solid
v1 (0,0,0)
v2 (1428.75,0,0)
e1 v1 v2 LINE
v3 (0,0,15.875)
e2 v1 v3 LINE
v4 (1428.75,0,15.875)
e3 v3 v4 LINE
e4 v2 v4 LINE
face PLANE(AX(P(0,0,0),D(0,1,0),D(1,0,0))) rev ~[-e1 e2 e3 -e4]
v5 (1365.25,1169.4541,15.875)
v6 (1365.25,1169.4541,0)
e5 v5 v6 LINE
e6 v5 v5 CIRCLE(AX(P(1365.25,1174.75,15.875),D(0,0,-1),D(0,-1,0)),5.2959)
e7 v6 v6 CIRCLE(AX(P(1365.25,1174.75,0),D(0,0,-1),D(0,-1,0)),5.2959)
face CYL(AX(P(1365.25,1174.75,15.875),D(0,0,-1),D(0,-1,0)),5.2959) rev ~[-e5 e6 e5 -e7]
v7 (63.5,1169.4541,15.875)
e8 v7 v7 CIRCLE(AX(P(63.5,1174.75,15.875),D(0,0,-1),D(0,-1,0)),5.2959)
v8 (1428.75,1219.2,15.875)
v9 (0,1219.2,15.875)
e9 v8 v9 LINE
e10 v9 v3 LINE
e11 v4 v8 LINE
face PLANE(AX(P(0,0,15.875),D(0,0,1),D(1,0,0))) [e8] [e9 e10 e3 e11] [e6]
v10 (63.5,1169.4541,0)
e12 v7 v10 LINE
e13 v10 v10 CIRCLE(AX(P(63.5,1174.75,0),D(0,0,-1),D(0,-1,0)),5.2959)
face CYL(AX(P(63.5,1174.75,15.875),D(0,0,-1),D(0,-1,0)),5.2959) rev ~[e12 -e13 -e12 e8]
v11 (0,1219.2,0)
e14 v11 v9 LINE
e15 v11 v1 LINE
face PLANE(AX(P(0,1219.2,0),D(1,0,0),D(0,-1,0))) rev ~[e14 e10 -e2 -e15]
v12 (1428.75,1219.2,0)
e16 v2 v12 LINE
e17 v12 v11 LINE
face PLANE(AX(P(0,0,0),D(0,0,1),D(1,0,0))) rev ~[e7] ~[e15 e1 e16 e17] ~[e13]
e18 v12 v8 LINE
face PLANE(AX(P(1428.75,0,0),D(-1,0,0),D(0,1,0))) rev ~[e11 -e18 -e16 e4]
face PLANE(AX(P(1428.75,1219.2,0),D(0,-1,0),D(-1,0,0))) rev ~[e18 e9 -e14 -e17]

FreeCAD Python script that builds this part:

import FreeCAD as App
import Part
import Sketcher
from FreeCAD import Vector
Q = App.Units.Quantity

doc = App.newDocument("Part")
body = doc.addObject("PartDesign::Body", "Body")

sketch1 = body.newObject("Sketcher::SketchObject", "Sketch")
sketch1.AttachmentSupport = (doc.getObject("XY_Plane"), [""])
sketch1.MapMode = "FlatFace"
sketch1.addGeometry([
    Part.LineSegment(Vector(0, 1219, 0), Vector(0, 0, 0)),
    Part.LineSegment(Vector(0, 0, 0), Vector(1429, 0, 0)),
    Part.LineSegment(Vector(1429, 0, 0), Vector(1429, 1219, 0)),
    Part.LineSegment(Vector(1429, 1219, 0), Vector(0, 1219, 0)),
], False)
sketch1.addConstraint([
    Sketcher.Constraint("Coincident", 0, 2, 1, 1),
    Sketcher.Constraint("Coincident", 1, 2, 2, 1),
    Sketcher.Constraint("Coincident", 2, 2, 3, 1),
    Sketcher.Constraint("Coincident", 3, 2, 0, 1),
    Sketcher.Constraint("Vertical", 0),
    Sketcher.Constraint("Horizontal", 1),
    Sketcher.Constraint("Vertical", 2),
    Sketcher.Constraint("Horizontal", 3),
    Sketcher.Constraint("Coincident", 0, 2, -1, 1),
    Sketcher.Constraint("DistanceY", 0, 2, 0, 1, Q("48 in")),
    Sketcher.Constraint("DistanceX", 1, 1, 1, 2, Q("56.25 in")),
])
pad1 = body.newObject("PartDesign::Pad", "Pad")
pad1.Profile = sketch1
pad1.Length = Q("0.625 in")

sketch2 = body.newObject("Sketcher::SketchObject", "Sketch001")
sketch2.AttachmentSupport = (doc.getObject("XY_Plane"), [""])
sketch2.MapMode = "FlatFace"
sketch2.AttachmentOffset = App.Placement(Vector(0, 0, 0.625 * 25.4), App.Rotation())
sketch2.addGeometry([
    Part.Circle(Vector(1365, 1175, 0), Vector(0, 0, 1), 5),
    Part.Circle(Vector(64, 1175, 0), Vector(0, 0, 1), 5),
], False)
sketch2.addConstraint([
    Sketcher.Constraint("Equal", 0, 1),
    Sketcher.Constraint("Horizontal", 0, 3, 1, 3),
    Sketcher.Constraint("Diameter", 0, Q("0.417 in")),
    Sketcher.Constraint("DistanceX", -1, 1, 1, 3, Q("2.5 in")),
    Sketcher.Constraint("DistanceX", -1, 1, 0, 3, Q("53.75 in")),
    Sketcher.Constraint("DistanceY", -1, 1, 0, 3, Q("46.25 in")),
])
doc.recompute()
hole = body.newObject("PartDesign::Hole", "Hole")
hole.Profile = sketch2
hole.ThreadType = "None"
hole.Diameter = Q("0.417 in")
hole.DepthType = "Dimension"
hole.Depth = Q("1.385 in")
hole.DrillPoint = "Angled"
hole.DrillPointAngle = 118

doc.recompute()
